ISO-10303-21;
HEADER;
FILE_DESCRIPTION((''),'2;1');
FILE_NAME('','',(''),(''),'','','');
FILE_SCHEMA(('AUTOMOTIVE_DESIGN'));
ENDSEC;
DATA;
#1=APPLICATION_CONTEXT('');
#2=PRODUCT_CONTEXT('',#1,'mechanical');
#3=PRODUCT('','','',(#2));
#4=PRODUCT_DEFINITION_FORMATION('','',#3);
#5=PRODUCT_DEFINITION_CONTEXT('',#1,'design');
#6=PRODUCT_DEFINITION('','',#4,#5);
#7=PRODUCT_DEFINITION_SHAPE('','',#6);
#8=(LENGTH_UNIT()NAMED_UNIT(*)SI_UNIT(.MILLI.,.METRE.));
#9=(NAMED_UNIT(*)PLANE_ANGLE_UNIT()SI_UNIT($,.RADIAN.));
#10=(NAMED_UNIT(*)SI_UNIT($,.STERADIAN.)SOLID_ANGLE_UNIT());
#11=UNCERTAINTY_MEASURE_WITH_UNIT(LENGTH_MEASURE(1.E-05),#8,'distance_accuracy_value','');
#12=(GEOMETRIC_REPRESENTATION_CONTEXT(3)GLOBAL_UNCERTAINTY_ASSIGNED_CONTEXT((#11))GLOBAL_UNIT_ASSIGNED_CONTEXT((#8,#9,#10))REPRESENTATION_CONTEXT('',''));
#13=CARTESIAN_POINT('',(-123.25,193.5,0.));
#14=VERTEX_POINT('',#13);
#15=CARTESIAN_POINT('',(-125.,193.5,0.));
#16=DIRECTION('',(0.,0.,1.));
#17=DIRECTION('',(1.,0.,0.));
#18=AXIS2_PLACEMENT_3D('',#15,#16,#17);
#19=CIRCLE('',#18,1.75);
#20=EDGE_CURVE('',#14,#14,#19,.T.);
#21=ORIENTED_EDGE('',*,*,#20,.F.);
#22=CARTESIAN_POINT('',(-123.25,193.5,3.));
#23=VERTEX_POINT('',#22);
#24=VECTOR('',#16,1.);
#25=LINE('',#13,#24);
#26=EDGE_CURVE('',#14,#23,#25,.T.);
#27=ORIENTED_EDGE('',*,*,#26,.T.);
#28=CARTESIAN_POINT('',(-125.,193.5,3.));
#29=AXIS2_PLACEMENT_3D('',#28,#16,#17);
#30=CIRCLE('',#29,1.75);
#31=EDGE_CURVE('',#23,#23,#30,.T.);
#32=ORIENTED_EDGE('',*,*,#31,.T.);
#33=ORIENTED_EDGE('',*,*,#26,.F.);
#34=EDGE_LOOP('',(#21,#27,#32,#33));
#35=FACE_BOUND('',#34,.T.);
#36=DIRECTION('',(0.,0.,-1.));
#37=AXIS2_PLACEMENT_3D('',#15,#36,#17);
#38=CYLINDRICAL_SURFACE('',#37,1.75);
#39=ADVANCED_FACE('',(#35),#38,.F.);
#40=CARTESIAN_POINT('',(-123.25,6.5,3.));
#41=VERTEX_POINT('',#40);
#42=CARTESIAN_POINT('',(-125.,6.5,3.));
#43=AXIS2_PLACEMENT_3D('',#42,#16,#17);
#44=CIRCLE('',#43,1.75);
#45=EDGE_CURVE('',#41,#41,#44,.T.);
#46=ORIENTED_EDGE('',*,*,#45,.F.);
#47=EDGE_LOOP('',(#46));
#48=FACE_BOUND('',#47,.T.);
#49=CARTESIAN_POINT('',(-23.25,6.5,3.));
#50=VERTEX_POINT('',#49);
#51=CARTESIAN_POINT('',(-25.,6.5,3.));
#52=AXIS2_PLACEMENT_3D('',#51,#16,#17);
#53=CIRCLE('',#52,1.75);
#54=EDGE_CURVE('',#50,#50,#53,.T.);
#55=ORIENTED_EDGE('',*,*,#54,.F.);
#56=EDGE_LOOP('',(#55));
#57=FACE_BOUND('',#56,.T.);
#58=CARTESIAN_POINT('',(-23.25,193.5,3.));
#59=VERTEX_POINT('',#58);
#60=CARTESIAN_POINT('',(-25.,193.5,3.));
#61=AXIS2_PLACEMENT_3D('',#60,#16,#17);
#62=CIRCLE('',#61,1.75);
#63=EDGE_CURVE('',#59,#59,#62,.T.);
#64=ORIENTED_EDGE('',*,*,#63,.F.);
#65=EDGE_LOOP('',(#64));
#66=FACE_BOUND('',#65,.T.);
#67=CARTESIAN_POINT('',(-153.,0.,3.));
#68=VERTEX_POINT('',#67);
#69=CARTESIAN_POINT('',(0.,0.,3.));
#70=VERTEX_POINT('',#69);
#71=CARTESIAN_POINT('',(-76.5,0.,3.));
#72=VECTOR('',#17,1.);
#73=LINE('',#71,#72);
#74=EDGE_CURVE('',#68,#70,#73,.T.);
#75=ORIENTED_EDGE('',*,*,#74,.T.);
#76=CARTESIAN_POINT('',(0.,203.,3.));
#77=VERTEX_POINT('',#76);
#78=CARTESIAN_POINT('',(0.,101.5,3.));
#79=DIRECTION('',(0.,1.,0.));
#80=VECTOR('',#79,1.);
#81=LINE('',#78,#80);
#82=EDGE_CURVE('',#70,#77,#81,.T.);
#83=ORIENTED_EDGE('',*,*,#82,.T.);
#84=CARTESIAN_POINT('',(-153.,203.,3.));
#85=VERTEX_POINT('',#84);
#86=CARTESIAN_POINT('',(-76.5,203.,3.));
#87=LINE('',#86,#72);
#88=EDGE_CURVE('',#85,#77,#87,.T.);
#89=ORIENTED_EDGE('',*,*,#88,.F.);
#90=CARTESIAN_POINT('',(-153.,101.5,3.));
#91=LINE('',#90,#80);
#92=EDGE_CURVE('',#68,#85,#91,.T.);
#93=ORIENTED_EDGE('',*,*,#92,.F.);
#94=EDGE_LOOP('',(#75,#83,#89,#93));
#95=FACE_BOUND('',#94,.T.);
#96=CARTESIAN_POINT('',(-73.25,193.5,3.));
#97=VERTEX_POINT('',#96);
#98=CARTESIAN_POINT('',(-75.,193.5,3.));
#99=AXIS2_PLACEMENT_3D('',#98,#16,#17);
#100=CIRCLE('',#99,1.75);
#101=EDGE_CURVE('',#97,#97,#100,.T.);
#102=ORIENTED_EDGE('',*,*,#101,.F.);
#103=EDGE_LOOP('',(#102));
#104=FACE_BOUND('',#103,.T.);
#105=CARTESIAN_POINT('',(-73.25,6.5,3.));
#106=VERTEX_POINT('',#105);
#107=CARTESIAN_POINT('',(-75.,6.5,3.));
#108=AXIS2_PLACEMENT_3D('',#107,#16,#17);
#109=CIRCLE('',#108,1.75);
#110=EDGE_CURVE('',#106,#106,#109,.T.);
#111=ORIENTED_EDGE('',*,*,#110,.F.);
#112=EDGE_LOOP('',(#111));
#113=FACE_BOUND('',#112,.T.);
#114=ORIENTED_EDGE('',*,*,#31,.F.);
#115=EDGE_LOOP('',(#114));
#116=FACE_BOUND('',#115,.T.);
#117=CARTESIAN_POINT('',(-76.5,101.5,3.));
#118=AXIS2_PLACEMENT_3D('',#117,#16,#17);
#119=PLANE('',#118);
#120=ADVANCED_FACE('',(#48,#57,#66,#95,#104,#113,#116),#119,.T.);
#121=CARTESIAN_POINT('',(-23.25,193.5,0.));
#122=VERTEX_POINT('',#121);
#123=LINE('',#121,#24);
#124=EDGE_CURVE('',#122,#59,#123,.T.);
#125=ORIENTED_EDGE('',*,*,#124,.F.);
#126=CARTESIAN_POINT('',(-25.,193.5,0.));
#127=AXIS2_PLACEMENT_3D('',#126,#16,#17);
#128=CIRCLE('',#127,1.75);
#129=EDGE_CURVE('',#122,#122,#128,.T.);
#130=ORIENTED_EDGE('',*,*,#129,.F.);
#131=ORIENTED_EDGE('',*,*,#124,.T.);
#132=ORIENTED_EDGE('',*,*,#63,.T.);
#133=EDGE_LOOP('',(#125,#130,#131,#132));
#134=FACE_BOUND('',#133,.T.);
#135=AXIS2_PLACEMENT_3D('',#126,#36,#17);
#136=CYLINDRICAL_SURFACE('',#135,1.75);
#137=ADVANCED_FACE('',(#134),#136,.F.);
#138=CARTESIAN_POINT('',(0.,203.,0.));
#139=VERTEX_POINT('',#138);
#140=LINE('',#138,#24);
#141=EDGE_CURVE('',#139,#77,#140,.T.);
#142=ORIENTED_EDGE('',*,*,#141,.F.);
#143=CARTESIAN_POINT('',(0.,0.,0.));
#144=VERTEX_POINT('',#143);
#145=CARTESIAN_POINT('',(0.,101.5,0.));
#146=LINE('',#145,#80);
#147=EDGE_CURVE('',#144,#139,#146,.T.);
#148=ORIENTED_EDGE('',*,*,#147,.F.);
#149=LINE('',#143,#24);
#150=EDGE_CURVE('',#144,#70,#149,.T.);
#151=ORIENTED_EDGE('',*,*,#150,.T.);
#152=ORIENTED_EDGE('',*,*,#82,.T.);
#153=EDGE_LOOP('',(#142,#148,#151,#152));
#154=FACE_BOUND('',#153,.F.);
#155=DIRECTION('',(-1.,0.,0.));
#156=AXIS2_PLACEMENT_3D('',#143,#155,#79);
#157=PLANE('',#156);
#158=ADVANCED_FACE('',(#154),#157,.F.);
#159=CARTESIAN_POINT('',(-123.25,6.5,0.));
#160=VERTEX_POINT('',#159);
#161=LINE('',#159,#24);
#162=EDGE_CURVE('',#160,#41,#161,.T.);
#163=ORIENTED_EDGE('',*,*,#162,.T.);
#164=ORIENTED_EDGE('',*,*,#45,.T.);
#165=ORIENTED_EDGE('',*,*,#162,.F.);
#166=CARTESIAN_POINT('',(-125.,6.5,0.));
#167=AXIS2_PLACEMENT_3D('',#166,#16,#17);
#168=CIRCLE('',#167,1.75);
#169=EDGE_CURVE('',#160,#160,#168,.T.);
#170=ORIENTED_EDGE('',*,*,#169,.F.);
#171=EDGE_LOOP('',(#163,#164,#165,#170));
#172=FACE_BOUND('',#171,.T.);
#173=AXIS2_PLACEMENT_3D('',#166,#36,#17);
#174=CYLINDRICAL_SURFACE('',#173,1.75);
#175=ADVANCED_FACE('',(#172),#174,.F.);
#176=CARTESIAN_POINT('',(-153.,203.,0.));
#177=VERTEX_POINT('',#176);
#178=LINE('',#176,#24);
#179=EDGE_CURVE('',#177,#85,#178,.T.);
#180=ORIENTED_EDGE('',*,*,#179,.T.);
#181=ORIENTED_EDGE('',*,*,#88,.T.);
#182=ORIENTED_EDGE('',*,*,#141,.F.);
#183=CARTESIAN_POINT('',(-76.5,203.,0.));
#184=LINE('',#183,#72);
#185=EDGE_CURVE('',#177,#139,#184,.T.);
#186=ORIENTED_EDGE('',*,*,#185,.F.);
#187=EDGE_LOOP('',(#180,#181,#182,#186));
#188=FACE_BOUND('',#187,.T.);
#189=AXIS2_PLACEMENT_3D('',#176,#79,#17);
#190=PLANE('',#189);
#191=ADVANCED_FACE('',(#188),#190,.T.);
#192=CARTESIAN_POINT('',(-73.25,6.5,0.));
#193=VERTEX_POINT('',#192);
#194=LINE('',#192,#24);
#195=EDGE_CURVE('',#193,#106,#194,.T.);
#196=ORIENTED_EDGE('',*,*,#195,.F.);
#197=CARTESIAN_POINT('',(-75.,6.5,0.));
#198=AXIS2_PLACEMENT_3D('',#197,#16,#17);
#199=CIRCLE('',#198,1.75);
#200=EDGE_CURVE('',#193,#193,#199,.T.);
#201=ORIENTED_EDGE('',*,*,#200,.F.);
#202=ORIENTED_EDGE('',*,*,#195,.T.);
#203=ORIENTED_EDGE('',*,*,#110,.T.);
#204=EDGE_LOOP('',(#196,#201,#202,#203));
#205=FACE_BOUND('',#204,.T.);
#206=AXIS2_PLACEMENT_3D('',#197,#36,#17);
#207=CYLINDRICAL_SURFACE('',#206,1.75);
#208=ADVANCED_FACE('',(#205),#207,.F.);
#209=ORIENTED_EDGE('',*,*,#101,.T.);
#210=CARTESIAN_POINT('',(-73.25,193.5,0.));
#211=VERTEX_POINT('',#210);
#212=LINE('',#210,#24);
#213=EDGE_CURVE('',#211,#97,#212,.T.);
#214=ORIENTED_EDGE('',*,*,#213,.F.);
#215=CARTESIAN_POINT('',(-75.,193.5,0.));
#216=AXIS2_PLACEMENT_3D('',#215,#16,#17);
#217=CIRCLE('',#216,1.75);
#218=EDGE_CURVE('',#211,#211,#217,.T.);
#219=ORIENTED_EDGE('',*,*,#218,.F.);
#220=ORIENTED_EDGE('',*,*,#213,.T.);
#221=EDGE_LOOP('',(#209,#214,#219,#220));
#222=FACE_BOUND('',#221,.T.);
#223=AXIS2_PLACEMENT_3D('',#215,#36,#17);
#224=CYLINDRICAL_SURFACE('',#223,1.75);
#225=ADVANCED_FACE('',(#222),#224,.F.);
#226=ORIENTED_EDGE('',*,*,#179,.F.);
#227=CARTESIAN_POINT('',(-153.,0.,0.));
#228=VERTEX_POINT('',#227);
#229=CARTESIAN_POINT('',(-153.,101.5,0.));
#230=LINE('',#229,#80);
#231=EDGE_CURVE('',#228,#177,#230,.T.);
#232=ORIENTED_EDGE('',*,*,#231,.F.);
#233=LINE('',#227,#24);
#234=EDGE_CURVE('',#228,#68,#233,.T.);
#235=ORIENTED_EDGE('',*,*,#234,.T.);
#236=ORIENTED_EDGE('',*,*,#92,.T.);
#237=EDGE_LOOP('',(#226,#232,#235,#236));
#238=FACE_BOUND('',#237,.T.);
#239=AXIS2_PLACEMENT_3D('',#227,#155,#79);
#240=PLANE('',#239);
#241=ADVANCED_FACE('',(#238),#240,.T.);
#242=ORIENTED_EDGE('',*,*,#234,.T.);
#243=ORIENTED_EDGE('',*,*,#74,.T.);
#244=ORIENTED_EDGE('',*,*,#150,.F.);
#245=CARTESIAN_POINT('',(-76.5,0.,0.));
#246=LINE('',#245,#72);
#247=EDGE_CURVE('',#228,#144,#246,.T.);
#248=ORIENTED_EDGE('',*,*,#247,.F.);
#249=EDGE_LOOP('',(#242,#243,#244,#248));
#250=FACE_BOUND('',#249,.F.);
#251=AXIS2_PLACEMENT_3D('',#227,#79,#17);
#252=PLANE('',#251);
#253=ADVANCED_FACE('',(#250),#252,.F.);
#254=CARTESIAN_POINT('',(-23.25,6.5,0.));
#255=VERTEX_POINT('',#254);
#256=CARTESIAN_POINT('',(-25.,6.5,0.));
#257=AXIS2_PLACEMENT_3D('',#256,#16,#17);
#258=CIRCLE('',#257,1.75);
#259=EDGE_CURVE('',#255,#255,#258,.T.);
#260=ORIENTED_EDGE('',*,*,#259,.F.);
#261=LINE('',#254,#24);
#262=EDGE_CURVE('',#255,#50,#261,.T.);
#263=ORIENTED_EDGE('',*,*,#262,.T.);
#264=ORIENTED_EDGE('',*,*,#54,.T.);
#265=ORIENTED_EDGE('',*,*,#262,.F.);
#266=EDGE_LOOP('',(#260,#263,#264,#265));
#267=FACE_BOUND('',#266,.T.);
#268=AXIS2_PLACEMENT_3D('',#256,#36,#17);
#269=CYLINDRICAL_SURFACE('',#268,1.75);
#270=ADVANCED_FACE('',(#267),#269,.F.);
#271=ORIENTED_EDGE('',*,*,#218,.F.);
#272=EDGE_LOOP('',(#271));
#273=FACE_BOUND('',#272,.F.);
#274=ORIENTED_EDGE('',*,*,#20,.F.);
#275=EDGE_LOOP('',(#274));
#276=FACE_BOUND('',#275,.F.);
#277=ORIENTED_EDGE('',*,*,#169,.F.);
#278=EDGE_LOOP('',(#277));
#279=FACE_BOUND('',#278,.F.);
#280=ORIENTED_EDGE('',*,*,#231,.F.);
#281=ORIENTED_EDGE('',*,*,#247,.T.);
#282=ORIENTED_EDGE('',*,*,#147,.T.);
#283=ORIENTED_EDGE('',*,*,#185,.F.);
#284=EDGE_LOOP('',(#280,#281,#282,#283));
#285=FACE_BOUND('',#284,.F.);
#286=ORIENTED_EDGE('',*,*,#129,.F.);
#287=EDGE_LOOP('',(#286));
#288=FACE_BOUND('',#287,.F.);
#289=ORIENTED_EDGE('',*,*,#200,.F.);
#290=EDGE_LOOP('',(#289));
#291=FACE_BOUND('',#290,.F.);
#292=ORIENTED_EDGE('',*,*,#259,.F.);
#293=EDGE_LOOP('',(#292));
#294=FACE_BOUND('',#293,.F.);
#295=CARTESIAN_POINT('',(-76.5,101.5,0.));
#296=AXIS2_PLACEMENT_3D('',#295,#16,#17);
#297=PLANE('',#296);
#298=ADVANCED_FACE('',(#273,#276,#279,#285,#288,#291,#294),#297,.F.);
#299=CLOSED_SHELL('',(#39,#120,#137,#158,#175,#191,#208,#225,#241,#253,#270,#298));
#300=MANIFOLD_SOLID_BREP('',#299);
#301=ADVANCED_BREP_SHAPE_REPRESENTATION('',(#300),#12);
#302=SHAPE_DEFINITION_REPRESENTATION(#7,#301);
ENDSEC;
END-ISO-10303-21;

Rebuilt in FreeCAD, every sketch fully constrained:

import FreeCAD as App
import Part
import Sketcher

V = App.Vector
Q = App.Units.Quantity

doc = App.newDocument("Part")
params = doc.addObject("Spreadsheet::Sheet", "Params")
for row, (alias, value) in enumerate([
    ("sketch1_diameter", "3.5 mm"),
    ("sketch1_width", "153 mm"),
    ("sketch1_height", "203 mm"),
    ("pad1_length", "3 mm"),
], start=1):
    params.set(f"A{row}", alias)
    params.set(f"B{row}", "=" + value)
    params.setAlias(f"B{row}", alias)

body = doc.addObject("PartDesign::Body", "Body")

# Sketch on XY plane
sketch1 = body.newObject("Sketcher::SketchObject", "Sketch")
sketch1.AttachmentSupport = (doc.getObject("XY_Plane"), [""])
sketch1.MapMode = "FlatFace"
sketch1.addGeometry([
    Part.LineSegment(V(-153, 203, 0), V(-153, 0, 0)),  # 0
    Part.LineSegment(V(-153, 0, 0), V(0, 0, 0)),  # 1
    Part.LineSegment(V(0, 0, 0), V(0, 203, 0)),  # 2
    Part.LineSegment(V(0, 203, 0), V(-153, 203, 0)),  # 3
    Part.Circle(V(-125, 6.5, 0), V(0, 0, 1), 1.8),  # 4
    Part.Circle(V(-75, 6.5, 0), V(0, 0, 1), 1.8),  # 5
    Part.Circle(V(-25, 6.5, 0), V(0, 0, 1), 1.8),  # 6
    Part.Circle(V(-125, 193.5, 0), V(0, 0, 1), 1.8),  # 7
    Part.Circle(V(-75, 193.5, 0), V(0, 0, 1), 1.8),  # 8
    Part.Circle(V(-25, 193.5, 0), V(0, 0, 1), 1.8),  # 9
], False)
sketch1.addConstraint([
    Sketcher.Constraint("Coincident", 0, 2, 1, 1),
    Sketcher.Constraint("Coincident", 1, 2, 2, 1),
    Sketcher.Constraint("Coincident", 2, 2, 3, 1),
    Sketcher.Constraint("Coincident", 3, 2, 0, 1),
    Sketcher.Constraint("Vertical", 0),
    Sketcher.Constraint("Horizontal", 1),
    Sketcher.Constraint("Vertical", 2),
    Sketcher.Constraint("Horizontal", 3),
    Sketcher.Constraint("Coincident", 1, 2, -1, 1),
    Sketcher.Constraint("Equal", 4, 5),
    Sketcher.Constraint("Equal", 5, 6),
    Sketcher.Constraint("Equal", 6, 7),
    Sketcher.Constraint("Equal", 7, 8),
    Sketcher.Constraint("Equal", 8, 9),
    Sketcher.Constraint("Horizontal", 4, 3, 5, 3),
    Sketcher.Constraint("Horizontal", 5, 3, 6, 3),
    Sketcher.Constraint("Horizontal", 7, 3, 8, 3),
    Sketcher.Constraint("Horizontal", 8, 3, 9, 3),
    Sketcher.Constraint("Vertical", 4, 3, 7, 3),
    Sketcher.Constraint("Vertical", 5, 3, 8, 3),
    Sketcher.Constraint("Vertical", 6, 3, 9, 3),
    Sketcher.Constraint("Diameter", 4, Q("3.5 mm")),
    Sketcher.Constraint("DistanceX", 1, 1, 1, 2, Q("153 mm")),
    Sketcher.Constraint("DistanceY", 0, 2, 0, 1, Q("203 mm")),
    Sketcher.Constraint("DistanceX", 4, 3, -1, 1, Q("125 mm")),
    Sketcher.Constraint("DistanceX", 5, 3, -1, 1, Q("75 mm")),
    Sketcher.Constraint("DistanceX", 6, 3, -1, 1, Q("25 mm")),
    Sketcher.Constraint("DistanceY", 4, 3, 7, 3, Q("187 mm")),
    Sketcher.Constraint("DistanceY", -1, 1, 4, 3, Q("6.5 mm")),
])
sketch1.setExpression("Constraints[21]", "Params.sketch1_diameter")
sketch1.setExpression("Constraints[22]", "Params.sketch1_width")
sketch1.setExpression("Constraints[23]", "Params.sketch1_height")
pad1 = body.newObject("PartDesign::Pad", "Pad")
pad1.Profile = sketch1
pad1.setExpression("Length", "Params.pad1_length")

doc.recompute()
